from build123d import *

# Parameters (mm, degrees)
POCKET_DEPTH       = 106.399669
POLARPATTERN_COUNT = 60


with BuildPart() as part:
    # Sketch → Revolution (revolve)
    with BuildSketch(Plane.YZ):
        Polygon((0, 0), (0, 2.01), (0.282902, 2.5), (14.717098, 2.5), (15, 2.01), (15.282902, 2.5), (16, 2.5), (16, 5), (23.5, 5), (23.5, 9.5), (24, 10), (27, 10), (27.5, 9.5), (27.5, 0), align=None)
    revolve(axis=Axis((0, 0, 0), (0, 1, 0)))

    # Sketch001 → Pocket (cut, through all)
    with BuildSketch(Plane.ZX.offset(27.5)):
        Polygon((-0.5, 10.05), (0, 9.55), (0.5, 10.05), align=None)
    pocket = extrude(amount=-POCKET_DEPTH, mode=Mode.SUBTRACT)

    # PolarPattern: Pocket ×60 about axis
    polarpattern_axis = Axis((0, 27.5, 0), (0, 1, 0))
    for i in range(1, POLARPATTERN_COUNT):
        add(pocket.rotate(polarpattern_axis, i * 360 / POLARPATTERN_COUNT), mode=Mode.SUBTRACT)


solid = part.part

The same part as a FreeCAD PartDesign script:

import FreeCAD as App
import Part
import Sketcher
from FreeCAD import Vector
Q = App.Units.Quantity

doc = App.newDocument("Part")
params = doc.addObject("Spreadsheet::Sheet", "Params")
for row, (alias, value) in enumerate([
    ("sketch1_width", "3 mm"),
    ("sketch1_width2", "27.5 mm"),
    ("sketch1_width3", "7.5 mm"),
    ("sketch1_height", "9.5 mm"),
    ("sketch1_height2", "4.5 mm"),
    ("revolution_angle", "360 deg"),
    ("sketch2_height", "1 mm"),
], start=1):
    params.set(f"A{row}", alias)
    params.set(f"B{row}", "=" + value)
    params.setAlias(f"B{row}", alias)

body = doc.addObject("PartDesign::Body", "Body")

# Sketch on YZ plane
sketch1 = body.newObject("Sketcher::SketchObject", "Sketch")
sketch1.AttachmentSupport = (doc.getObject("YZ_Plane"), [""])
sketch1.MapMode = "FlatFace"
sketch1.addGeometry(Part.LineSegment(Vector(0, 2, 0), Vector(0, 0, 0)), False)
sketch1.addGeometry(Part.LineSegment(Vector(0, 0, 0), Vector(27.5, 0, 0)), False)
sketch1.addGeometry(Part.LineSegment(Vector(27.5, 0, 0), Vector(27.5, 9.5, 0)), False)
sketch1.addGeometry(Part.LineSegment(Vector(27.5, 9.5, 0), Vector(27, 10, 0)), False)
sketch1.addGeometry(Part.LineSegment(Vector(27, 10, 0), Vector(24, 10, 0)), False)
sketch1.addGeometry(Part.LineSegment(Vector(24, 10, 0), Vector(23.5, 9.5, 0)), False)
sketch1.addGeometry(Part.LineSegment(Vector(23.5, 9.5, 0), Vector(23.5, 5, 0)), False)
sketch1.addGeometry(Part.LineSegment(Vector(23.5, 5, 0), Vector(16, 5, 0)), False)
sketch1.addGeometry(Part.LineSegment(Vector(16, 5, 0), Vector(16, 2.5, 0)), False)
sketch1.addGeometry(Part.LineSegment(Vector(16, 2.5, 0), Vector(15.3, 2.5, 0)), False)
sketch1.addGeometry(Part.LineSegment(Vector(15.3, 2.5, 0), Vector(15, 2, 0)), False)
sketch1.addGeometry(Part.LineSegment(Vector(15, 2, 0), Vector(14.7, 2.5, 0)), False)
sketch1.addGeometry(Part.LineSegment(Vector(14.7, 2.5, 0), Vector(0.3, 2.5, 0)), False)
sketch1.addGeometry(Part.LineSegment(Vector(0.3, 2.5, 0), Vector(0, 2, 0)), False)
sketch1.addConstraint(Sketcher.Constraint("Coincident", 0, 2, 1, 1))
sketch1.addConstraint(Sketcher.Constraint("Coincident", 1, 2, 2, 1))
sketch1.addConstraint(Sketcher.Constraint("Coincident", 2, 2, 3, 1))
sketch1.addConstraint(Sketcher.Constraint("Coincident", 3, 2, 4, 1))
sketch1.addConstraint(Sketcher.Constraint("Coincident", 4, 2, 5, 1))
sketch1.addConstraint(Sketcher.Constraint("Coincident", 5, 2, 6, 1))
sketch1.addConstraint(Sketcher.Constraint("Coincident", 6, 2, 7, 1))
sketch1.addConstraint(Sketcher.Constraint("Coincident", 7, 2, 8, 1))
sketch1.addConstraint(Sketcher.Constraint("Coincident", 8, 2, 9, 1))
sketch1.addConstraint(Sketcher.Constraint("Coincident", 9, 2, 10, 1))
sketch1.addConstraint(Sketcher.Constraint("Coincident", 10, 2, 11, 1))
sketch1.addConstraint(Sketcher.Constraint("Coincident", 11, 2, 12, 1))
sketch1.addConstraint(Sketcher.Constraint("Coincident", 12, 2, 13, 1))
sketch1.addConstraint(Sketcher.Constraint("Coincident", 13, 2, 0, 1))
sketch1.addConstraint(Sketcher.Constraint("Vertical", 0))
sketch1.addConstraint(Sketcher.Constraint("Horizontal", 1))
sketch1.addConstraint(Sketcher.Constraint("Vertical", 2))
sketch1.addConstraint(Sketcher.Constraint("Horizontal", 4))
sketch1.addConstraint(Sketcher.Constraint("Vertical", 6))
sketch1.addConstraint(Sketcher.Constraint("Horizontal", 7))
sketch1.addConstraint(Sketcher.Constraint("Vertical", 8))
sketch1.addConstraint(Sketcher.Constraint("Horizontal", 9))
sketch1.addConstraint(Sketcher.Constraint("Horizontal", 12))
sketch1.addConstraint(Sketcher.Constraint("Coincident", 0, 2, -1, 1))
sketch1.addConstraint(Sketcher.Constraint("Perpendicular", 3, 5))
sketch1.addConstraint(Sketcher.Constraint("Parallel", 10, 13))
sketch1.addConstraint(Sketcher.Constraint("Horizontal", 2, 2, 5, 2))
sketch1.addConstraint(Sketcher.Constraint("Horizontal", 9, 2, 11, 2))
sketch1.addConstraint(Sketcher.Constraint("Horizontal", 10, 2, 13, 2))
sketch1.addConstraint(Sketcher.Constraint("Equal", 3, 5))
sketch1.addConstraint(Sketcher.Constraint("Equal", 10, 11))
sketch1.addConstraint(Sketcher.Constraint("DistanceX", 4, 2, 4, 1, Q("3 mm")))
sketch1.addConstraint(Sketcher.Constraint("DistanceX", 1, 1, 1, 2, Q("27.5 mm")))
sketch1.addConstraint(Sketcher.Constraint("DistanceX", 7, 2, 7, 1, Q("7.5 mm")))
sketch1.addConstraint(Sketcher.Constraint("DistanceY", 2, 1, 2, 2, Q("9.5 mm")))
sketch1.addConstraint(Sketcher.Constraint("DistanceY", 6, 2, 6, 1, Q("4.5 mm")))
sketch1.addConstraint(Sketcher.Constraint("DistanceY", 8, 2, 8, 1, Q("2.5 mm")))
sketch1.addConstraint(Sketcher.Constraint("DistanceX", -1, 1, 3, 2, Q("27 mm")))
sketch1.addConstraint(Sketcher.Constraint("DistanceX", -1, 1, 10, 2, Q("15 mm")))
sketch1.addConstraint(Sketcher.Constraint("DistanceY", 0, 2, 0, 1, Q("2.01 mm")))
sketch1.addConstraint(Sketcher.Constraint("DistanceX", 9, 2, 9, 1, Q("0.717098 mm")))
sketch1.setExpression("Constraints[31]", "Params.sketch1_width")
sketch1.setExpression("Constraints[32]", "Params.sketch1_width2")
sketch1.setExpression("Constraints[33]", "Params.sketch1_width3")
sketch1.setExpression("Constraints[34]", "Params.sketch1_height")
sketch1.setExpression("Constraints[35]", "Params.sketch1_height2")
revolution = body.newObject("PartDesign::Revolution", "Revolution")
revolution.Profile = sketch1
revolution.ReferenceAxis = (sketch1, ["H_Axis"])
revolution.setExpression("Angle", "Params.revolution_angle")

# Sketch on XZ plane
sketch2 = body.newObject("Sketcher::SketchObject", "Sketch001")
sketch2.AttachmentSupport = (doc.getObject("XZ_Plane"), [""])
sketch2.MapMode = "FlatFace"
sketch2.AttachmentOffset = App.Placement(Vector(0, 0, -27.5), App.Rotation())
sketch2.addGeometry(Part.LineSegment(Vector(10.1, -0.5, 0), Vector(9.6, 0, 0)), False)
sketch2.addGeometry(Part.LineSegment(Vector(9.6, 0, 0), Vector(10.1, 0.5, 0)), False)
sketch2.addGeometry(Part.LineSegment(Vector(10.1, 0.5, 0), Vector(10.1, -0.5, 0)), False)
sketch2.addConstraint(Sketcher.Constraint("Coincident", 0, 2, 1, 1))
sketch2.addConstraint(Sketcher.Constraint("Coincident", 1, 2, 2, 1))
sketch2.addConstraint(Sketcher.Constraint("Coincident", 2, 2, 0, 1))
sketch2.addConstraint(Sketcher.Constraint("Vertical", 2))
sketch2.addConstraint(Sketcher.Constraint("PointOnObject", 0, 2, -1))
sketch2.addConstraint(Sketcher.Constraint("Perpendicular", 0, 1))
sketch2.addConstraint(Sketcher.Constraint("Equal", 0, 1))
sketch2.addConstraint(Sketcher.Constraint("DistanceY", 2, 2, 2, 1, Q("1 mm")))
sketch2.addConstraint(Sketcher.Constraint("DistanceX", -1, 1, 0, 2, Q("9.55 mm")))
sketch2.setExpression("Constraints[7]", "Params.sketch2_height")
pocket1 = body.newObject("PartDesign::Pocket", "Pocket")
pocket1.Profile = sketch2
pocket1.Type = "ThroughAll"
pocket1.Reversed = True
doc.recompute()

polarpattern = body.newObject("PartDesign::PolarPattern", "PolarPattern")
polarpattern.Originals = [pocket1]
polarpattern.Axis = (doc.getObject("Y_Axis"), [""])
polarpattern.Angle = 360
polarpattern.Occurrences = 60
body.Tip = polarpattern

doc.recompute()
